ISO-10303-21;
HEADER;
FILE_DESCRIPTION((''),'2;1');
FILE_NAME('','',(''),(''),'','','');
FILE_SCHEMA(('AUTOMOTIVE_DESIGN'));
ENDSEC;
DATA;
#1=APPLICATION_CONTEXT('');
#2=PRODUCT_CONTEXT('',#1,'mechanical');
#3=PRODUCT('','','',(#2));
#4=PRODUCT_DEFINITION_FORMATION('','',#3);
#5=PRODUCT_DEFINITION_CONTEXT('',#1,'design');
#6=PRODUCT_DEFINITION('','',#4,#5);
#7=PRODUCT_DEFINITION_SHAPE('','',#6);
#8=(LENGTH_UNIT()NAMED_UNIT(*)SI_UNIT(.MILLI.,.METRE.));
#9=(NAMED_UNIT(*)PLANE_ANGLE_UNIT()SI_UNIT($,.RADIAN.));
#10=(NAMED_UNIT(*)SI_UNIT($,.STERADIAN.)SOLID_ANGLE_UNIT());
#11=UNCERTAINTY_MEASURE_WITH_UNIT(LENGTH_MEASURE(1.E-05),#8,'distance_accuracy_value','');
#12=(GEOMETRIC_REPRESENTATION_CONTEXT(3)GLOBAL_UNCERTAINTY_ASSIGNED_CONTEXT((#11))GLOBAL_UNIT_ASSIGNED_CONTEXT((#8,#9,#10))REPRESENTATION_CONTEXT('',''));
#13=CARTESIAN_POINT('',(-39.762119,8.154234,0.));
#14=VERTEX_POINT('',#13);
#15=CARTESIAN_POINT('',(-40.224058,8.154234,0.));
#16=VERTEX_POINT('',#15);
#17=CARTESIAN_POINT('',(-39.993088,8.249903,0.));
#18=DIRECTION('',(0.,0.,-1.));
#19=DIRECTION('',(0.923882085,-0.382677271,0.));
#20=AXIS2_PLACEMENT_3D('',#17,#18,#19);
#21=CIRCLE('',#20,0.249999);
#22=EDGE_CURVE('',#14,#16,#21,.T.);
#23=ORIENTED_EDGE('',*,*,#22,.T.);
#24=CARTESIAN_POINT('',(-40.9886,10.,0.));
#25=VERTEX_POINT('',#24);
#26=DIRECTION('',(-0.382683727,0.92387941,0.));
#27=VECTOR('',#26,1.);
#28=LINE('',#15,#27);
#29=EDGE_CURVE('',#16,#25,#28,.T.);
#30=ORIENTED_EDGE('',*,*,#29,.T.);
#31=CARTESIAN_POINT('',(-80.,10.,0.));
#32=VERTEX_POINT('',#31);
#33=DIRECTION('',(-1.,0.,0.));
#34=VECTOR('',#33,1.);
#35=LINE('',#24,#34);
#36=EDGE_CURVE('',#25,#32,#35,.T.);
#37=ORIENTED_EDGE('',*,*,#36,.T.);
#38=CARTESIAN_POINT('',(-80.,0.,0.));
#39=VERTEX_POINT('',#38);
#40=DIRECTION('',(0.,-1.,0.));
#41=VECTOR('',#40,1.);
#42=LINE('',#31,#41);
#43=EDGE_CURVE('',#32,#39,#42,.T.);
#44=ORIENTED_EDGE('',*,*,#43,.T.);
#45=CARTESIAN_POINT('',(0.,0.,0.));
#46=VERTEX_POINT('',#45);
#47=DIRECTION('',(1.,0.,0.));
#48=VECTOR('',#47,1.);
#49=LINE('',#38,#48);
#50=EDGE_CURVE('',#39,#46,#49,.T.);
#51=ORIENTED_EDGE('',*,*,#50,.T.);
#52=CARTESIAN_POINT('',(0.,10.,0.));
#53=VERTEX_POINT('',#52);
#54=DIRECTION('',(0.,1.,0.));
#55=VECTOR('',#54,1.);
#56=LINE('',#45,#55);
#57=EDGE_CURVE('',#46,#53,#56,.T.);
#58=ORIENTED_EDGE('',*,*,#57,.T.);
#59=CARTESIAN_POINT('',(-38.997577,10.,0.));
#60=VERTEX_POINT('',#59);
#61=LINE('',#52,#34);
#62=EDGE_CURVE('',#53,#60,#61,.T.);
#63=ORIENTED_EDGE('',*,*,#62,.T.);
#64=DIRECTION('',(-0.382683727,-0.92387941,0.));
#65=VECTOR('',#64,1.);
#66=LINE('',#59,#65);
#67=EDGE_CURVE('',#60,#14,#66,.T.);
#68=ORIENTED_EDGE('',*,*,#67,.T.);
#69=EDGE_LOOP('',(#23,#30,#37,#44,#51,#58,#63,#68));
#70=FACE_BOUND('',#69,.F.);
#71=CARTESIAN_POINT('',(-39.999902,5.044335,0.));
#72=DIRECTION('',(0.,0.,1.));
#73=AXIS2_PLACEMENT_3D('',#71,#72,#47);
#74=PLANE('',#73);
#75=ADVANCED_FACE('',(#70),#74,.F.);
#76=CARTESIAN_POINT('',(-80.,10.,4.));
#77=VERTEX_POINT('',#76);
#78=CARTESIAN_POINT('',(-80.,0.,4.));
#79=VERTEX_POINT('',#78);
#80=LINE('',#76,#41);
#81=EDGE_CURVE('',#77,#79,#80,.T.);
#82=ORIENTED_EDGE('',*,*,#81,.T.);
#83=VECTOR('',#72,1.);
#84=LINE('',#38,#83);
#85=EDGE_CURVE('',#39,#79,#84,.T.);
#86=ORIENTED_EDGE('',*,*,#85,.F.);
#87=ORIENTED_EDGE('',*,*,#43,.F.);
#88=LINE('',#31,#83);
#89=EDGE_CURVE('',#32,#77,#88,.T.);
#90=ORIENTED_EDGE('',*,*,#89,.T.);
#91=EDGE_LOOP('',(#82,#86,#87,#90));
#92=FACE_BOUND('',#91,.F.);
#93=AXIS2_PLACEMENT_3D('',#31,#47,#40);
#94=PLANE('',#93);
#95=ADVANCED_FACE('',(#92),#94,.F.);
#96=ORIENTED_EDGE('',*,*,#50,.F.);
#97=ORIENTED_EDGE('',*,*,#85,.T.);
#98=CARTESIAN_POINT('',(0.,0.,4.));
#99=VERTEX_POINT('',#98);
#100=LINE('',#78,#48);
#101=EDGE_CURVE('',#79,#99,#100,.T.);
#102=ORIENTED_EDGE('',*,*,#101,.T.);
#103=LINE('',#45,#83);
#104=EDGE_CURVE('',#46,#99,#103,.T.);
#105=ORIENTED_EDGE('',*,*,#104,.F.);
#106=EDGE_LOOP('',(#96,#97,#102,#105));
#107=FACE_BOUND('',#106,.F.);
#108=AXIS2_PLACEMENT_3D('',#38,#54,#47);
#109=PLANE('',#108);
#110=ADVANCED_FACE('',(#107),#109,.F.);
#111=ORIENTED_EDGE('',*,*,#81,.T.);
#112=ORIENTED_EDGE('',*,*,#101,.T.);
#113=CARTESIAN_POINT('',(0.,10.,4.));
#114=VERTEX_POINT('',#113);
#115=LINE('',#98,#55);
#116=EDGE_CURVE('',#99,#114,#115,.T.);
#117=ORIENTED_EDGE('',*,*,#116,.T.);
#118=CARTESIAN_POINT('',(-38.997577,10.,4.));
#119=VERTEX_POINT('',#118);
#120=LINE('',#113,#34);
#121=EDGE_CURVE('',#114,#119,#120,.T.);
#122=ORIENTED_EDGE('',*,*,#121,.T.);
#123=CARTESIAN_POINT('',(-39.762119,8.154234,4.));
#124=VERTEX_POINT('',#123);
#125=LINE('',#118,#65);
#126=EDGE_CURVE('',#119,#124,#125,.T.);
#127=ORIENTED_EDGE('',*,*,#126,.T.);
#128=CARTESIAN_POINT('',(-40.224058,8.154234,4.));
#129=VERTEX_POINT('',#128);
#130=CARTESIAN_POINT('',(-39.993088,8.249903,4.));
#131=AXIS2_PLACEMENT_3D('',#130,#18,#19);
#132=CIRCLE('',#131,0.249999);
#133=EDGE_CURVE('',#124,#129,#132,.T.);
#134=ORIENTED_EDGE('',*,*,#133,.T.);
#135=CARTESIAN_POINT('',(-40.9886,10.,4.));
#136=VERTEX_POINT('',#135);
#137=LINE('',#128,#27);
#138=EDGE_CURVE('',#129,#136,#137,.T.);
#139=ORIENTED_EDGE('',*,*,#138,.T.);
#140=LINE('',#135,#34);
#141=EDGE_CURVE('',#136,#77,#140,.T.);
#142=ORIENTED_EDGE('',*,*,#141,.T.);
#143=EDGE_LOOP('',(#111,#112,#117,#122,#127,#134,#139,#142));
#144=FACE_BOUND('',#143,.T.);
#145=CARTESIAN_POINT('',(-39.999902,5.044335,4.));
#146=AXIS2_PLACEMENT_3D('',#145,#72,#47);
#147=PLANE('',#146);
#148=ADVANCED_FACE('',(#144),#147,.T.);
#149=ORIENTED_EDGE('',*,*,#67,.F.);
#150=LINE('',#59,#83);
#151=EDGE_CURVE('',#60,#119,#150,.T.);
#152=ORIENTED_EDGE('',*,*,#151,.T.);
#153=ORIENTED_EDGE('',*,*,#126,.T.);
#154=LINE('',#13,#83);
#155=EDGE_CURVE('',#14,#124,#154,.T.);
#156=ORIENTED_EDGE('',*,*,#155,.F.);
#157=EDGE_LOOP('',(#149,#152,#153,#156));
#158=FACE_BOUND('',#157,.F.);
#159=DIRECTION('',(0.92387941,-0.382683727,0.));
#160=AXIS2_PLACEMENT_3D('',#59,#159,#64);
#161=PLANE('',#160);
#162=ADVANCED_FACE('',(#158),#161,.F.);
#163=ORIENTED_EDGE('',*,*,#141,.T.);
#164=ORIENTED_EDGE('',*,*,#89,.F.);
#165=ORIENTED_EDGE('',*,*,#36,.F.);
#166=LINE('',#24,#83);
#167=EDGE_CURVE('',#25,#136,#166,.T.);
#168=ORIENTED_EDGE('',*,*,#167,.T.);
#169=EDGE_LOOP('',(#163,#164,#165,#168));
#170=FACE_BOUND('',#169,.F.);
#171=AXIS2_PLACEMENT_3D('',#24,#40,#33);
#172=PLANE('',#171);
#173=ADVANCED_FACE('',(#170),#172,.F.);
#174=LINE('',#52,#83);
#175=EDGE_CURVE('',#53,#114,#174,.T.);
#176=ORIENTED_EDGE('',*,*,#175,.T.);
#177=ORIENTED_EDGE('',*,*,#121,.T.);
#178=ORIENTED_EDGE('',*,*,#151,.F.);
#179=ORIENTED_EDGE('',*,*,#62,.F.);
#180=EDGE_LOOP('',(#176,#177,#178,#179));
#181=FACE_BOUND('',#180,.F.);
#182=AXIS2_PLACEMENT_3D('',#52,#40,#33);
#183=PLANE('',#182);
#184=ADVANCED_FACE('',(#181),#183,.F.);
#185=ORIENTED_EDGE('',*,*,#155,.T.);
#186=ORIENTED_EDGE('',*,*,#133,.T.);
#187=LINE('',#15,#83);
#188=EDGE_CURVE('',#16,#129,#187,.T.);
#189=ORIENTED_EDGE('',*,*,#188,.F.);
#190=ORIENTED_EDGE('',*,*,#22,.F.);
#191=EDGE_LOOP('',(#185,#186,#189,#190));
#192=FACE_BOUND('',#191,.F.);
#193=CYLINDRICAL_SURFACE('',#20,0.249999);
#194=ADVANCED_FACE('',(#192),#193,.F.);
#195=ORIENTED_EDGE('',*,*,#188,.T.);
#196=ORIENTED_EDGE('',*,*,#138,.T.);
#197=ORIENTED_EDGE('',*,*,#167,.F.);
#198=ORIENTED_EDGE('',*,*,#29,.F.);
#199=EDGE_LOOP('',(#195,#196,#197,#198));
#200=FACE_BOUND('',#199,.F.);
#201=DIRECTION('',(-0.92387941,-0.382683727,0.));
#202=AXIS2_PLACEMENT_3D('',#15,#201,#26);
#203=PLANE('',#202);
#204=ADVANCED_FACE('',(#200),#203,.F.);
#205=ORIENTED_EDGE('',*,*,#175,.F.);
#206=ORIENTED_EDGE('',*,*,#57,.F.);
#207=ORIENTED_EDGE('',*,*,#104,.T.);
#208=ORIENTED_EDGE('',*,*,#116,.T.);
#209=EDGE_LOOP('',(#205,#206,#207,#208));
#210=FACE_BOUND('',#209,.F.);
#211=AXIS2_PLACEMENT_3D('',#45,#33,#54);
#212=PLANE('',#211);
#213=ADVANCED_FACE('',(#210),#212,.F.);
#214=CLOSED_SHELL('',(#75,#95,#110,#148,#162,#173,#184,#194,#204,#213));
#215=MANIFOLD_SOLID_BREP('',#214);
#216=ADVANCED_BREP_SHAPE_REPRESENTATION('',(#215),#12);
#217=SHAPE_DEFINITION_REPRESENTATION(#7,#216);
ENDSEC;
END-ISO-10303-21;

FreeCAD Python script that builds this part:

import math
import FreeCAD as App
import Part
import Sketcher

V = App.Vector
Q = App.Units.Quantity

doc = App.newDocument("Part")
body = doc.addObject("PartDesign::Body", "Body")

sketch1 = doc.addObject("Sketcher::SketchObject", "Sketch")
body.addObject(sketch1)
sketch1.AttachmentSupport = (doc.XY_Plane, [""])
sketch1.MapMode = "FlatFace"
sketch1.addGeometry(Part.LineSegment(V(0, 0, 0), V(0, 10, 0)), False)
sketch1.addGeometry(Part.LineSegment(V(0, 10, 0), V(-38.997577, 10, 0)), False)
sketch1.addGeometry(Part.LineSegment(V(-38.997577, 10, 0), V(-39.762119, 8.154234, 0)), False)
sketch1.addGeometry(Part.ArcOfCircle(Part.Circle(V(-39.993088, 8.249903, 0), V(0, 0, 1), 0.249999), math.radians(-157.500382), math.radians(-22.499618)), False)
sketch1.addGeometry(Part.LineSegment(V(-40.224058, 8.154234, 0), V(-40.9886, 10, 0)), False)
sketch1.addGeometry(Part.LineSegment(V(-40.9886, 10, 0), V(-80, 10, 0)), False)
sketch1.addGeometry(Part.LineSegment(V(-80, 10, 0), V(-80, 0, 0)), False)
sketch1.addGeometry(Part.LineSegment(V(-80, 0, 0), V(0, 0, 0)), False)
sketch1.addConstraint(Sketcher.Constraint("Coincident", 0, 2, 1, 1))
sketch1.addConstraint(Sketcher.Constraint("Coincident", 1, 2, 2, 1))
sketch1.addConstraint(Sketcher.Constraint("Coincident", 2, 2, 3, 2))
sketch1.addConstraint(Sketcher.Constraint("Coincident", 3, 1, 4, 1))
sketch1.addConstraint(Sketcher.Constraint("Coincident", 4, 2, 5, 1))
sketch1.addConstraint(Sketcher.Constraint("Coincident", 5, 2, 6, 1))
sketch1.addConstraint(Sketcher.Constraint("Coincident", 6, 2, 7, 1))
sketch1.addConstraint(Sketcher.Constraint("Coincident", 7, 2, 0, 1))
sketch1.addConstraint(Sketcher.Constraint("Vertical", 0))
sketch1.addConstraint(Sketcher.Constraint("Horizontal", 1))
sketch1.addConstraint(Sketcher.Constraint("Horizontal", 5))
sketch1.addConstraint(Sketcher.Constraint("Vertical", 6))
sketch1.addConstraint(Sketcher.Constraint("Horizontal", 7))
sketch1.addConstraint(Sketcher.Constraint("Coincident", 7, 2, -1, 1))
sketch1.addConstraint(Sketcher.Constraint("Horizontal", 2, 2, 3, 1))
sketch1.addConstraint(Sketcher.Constraint("Horizontal", 1, 2, 4, 2))
sketch1.addConstraint(Sketcher.Constraint("Equal", 2, 4))
sketch1.addConstraint(Sketcher.Constraint("DistanceX", 7, 1, 7, 2, 80.0))
sketch1.addConstraint(Sketcher.Constraint("DistanceY", 0, 1, 0, 2, 10.0))
sketch1.addConstraint(Sketcher.Constraint("Radius", 3, 0.249999))
sketch1.addConstraint(Sketcher.Constraint("Angle", 2, Q("-112.500018 deg")))
sketch1.addConstraint(Sketcher.Constraint("DistanceX", 5, 2, 5, 1, 39.0114))
sketch1.addConstraint(Sketcher.Constraint("DistanceX", 1, 2, 1, 1, 38.997577))
sketch1.addConstraint(Sketcher.Constraint("DistanceX", 2, 2, -1, 1, 39.762119))
pad1 = doc.addObject("PartDesign::Pad", "Pad")
body.addObject(pad1)
pad1.Profile = sketch1
pad1.Length = 4

doc.recompute()
